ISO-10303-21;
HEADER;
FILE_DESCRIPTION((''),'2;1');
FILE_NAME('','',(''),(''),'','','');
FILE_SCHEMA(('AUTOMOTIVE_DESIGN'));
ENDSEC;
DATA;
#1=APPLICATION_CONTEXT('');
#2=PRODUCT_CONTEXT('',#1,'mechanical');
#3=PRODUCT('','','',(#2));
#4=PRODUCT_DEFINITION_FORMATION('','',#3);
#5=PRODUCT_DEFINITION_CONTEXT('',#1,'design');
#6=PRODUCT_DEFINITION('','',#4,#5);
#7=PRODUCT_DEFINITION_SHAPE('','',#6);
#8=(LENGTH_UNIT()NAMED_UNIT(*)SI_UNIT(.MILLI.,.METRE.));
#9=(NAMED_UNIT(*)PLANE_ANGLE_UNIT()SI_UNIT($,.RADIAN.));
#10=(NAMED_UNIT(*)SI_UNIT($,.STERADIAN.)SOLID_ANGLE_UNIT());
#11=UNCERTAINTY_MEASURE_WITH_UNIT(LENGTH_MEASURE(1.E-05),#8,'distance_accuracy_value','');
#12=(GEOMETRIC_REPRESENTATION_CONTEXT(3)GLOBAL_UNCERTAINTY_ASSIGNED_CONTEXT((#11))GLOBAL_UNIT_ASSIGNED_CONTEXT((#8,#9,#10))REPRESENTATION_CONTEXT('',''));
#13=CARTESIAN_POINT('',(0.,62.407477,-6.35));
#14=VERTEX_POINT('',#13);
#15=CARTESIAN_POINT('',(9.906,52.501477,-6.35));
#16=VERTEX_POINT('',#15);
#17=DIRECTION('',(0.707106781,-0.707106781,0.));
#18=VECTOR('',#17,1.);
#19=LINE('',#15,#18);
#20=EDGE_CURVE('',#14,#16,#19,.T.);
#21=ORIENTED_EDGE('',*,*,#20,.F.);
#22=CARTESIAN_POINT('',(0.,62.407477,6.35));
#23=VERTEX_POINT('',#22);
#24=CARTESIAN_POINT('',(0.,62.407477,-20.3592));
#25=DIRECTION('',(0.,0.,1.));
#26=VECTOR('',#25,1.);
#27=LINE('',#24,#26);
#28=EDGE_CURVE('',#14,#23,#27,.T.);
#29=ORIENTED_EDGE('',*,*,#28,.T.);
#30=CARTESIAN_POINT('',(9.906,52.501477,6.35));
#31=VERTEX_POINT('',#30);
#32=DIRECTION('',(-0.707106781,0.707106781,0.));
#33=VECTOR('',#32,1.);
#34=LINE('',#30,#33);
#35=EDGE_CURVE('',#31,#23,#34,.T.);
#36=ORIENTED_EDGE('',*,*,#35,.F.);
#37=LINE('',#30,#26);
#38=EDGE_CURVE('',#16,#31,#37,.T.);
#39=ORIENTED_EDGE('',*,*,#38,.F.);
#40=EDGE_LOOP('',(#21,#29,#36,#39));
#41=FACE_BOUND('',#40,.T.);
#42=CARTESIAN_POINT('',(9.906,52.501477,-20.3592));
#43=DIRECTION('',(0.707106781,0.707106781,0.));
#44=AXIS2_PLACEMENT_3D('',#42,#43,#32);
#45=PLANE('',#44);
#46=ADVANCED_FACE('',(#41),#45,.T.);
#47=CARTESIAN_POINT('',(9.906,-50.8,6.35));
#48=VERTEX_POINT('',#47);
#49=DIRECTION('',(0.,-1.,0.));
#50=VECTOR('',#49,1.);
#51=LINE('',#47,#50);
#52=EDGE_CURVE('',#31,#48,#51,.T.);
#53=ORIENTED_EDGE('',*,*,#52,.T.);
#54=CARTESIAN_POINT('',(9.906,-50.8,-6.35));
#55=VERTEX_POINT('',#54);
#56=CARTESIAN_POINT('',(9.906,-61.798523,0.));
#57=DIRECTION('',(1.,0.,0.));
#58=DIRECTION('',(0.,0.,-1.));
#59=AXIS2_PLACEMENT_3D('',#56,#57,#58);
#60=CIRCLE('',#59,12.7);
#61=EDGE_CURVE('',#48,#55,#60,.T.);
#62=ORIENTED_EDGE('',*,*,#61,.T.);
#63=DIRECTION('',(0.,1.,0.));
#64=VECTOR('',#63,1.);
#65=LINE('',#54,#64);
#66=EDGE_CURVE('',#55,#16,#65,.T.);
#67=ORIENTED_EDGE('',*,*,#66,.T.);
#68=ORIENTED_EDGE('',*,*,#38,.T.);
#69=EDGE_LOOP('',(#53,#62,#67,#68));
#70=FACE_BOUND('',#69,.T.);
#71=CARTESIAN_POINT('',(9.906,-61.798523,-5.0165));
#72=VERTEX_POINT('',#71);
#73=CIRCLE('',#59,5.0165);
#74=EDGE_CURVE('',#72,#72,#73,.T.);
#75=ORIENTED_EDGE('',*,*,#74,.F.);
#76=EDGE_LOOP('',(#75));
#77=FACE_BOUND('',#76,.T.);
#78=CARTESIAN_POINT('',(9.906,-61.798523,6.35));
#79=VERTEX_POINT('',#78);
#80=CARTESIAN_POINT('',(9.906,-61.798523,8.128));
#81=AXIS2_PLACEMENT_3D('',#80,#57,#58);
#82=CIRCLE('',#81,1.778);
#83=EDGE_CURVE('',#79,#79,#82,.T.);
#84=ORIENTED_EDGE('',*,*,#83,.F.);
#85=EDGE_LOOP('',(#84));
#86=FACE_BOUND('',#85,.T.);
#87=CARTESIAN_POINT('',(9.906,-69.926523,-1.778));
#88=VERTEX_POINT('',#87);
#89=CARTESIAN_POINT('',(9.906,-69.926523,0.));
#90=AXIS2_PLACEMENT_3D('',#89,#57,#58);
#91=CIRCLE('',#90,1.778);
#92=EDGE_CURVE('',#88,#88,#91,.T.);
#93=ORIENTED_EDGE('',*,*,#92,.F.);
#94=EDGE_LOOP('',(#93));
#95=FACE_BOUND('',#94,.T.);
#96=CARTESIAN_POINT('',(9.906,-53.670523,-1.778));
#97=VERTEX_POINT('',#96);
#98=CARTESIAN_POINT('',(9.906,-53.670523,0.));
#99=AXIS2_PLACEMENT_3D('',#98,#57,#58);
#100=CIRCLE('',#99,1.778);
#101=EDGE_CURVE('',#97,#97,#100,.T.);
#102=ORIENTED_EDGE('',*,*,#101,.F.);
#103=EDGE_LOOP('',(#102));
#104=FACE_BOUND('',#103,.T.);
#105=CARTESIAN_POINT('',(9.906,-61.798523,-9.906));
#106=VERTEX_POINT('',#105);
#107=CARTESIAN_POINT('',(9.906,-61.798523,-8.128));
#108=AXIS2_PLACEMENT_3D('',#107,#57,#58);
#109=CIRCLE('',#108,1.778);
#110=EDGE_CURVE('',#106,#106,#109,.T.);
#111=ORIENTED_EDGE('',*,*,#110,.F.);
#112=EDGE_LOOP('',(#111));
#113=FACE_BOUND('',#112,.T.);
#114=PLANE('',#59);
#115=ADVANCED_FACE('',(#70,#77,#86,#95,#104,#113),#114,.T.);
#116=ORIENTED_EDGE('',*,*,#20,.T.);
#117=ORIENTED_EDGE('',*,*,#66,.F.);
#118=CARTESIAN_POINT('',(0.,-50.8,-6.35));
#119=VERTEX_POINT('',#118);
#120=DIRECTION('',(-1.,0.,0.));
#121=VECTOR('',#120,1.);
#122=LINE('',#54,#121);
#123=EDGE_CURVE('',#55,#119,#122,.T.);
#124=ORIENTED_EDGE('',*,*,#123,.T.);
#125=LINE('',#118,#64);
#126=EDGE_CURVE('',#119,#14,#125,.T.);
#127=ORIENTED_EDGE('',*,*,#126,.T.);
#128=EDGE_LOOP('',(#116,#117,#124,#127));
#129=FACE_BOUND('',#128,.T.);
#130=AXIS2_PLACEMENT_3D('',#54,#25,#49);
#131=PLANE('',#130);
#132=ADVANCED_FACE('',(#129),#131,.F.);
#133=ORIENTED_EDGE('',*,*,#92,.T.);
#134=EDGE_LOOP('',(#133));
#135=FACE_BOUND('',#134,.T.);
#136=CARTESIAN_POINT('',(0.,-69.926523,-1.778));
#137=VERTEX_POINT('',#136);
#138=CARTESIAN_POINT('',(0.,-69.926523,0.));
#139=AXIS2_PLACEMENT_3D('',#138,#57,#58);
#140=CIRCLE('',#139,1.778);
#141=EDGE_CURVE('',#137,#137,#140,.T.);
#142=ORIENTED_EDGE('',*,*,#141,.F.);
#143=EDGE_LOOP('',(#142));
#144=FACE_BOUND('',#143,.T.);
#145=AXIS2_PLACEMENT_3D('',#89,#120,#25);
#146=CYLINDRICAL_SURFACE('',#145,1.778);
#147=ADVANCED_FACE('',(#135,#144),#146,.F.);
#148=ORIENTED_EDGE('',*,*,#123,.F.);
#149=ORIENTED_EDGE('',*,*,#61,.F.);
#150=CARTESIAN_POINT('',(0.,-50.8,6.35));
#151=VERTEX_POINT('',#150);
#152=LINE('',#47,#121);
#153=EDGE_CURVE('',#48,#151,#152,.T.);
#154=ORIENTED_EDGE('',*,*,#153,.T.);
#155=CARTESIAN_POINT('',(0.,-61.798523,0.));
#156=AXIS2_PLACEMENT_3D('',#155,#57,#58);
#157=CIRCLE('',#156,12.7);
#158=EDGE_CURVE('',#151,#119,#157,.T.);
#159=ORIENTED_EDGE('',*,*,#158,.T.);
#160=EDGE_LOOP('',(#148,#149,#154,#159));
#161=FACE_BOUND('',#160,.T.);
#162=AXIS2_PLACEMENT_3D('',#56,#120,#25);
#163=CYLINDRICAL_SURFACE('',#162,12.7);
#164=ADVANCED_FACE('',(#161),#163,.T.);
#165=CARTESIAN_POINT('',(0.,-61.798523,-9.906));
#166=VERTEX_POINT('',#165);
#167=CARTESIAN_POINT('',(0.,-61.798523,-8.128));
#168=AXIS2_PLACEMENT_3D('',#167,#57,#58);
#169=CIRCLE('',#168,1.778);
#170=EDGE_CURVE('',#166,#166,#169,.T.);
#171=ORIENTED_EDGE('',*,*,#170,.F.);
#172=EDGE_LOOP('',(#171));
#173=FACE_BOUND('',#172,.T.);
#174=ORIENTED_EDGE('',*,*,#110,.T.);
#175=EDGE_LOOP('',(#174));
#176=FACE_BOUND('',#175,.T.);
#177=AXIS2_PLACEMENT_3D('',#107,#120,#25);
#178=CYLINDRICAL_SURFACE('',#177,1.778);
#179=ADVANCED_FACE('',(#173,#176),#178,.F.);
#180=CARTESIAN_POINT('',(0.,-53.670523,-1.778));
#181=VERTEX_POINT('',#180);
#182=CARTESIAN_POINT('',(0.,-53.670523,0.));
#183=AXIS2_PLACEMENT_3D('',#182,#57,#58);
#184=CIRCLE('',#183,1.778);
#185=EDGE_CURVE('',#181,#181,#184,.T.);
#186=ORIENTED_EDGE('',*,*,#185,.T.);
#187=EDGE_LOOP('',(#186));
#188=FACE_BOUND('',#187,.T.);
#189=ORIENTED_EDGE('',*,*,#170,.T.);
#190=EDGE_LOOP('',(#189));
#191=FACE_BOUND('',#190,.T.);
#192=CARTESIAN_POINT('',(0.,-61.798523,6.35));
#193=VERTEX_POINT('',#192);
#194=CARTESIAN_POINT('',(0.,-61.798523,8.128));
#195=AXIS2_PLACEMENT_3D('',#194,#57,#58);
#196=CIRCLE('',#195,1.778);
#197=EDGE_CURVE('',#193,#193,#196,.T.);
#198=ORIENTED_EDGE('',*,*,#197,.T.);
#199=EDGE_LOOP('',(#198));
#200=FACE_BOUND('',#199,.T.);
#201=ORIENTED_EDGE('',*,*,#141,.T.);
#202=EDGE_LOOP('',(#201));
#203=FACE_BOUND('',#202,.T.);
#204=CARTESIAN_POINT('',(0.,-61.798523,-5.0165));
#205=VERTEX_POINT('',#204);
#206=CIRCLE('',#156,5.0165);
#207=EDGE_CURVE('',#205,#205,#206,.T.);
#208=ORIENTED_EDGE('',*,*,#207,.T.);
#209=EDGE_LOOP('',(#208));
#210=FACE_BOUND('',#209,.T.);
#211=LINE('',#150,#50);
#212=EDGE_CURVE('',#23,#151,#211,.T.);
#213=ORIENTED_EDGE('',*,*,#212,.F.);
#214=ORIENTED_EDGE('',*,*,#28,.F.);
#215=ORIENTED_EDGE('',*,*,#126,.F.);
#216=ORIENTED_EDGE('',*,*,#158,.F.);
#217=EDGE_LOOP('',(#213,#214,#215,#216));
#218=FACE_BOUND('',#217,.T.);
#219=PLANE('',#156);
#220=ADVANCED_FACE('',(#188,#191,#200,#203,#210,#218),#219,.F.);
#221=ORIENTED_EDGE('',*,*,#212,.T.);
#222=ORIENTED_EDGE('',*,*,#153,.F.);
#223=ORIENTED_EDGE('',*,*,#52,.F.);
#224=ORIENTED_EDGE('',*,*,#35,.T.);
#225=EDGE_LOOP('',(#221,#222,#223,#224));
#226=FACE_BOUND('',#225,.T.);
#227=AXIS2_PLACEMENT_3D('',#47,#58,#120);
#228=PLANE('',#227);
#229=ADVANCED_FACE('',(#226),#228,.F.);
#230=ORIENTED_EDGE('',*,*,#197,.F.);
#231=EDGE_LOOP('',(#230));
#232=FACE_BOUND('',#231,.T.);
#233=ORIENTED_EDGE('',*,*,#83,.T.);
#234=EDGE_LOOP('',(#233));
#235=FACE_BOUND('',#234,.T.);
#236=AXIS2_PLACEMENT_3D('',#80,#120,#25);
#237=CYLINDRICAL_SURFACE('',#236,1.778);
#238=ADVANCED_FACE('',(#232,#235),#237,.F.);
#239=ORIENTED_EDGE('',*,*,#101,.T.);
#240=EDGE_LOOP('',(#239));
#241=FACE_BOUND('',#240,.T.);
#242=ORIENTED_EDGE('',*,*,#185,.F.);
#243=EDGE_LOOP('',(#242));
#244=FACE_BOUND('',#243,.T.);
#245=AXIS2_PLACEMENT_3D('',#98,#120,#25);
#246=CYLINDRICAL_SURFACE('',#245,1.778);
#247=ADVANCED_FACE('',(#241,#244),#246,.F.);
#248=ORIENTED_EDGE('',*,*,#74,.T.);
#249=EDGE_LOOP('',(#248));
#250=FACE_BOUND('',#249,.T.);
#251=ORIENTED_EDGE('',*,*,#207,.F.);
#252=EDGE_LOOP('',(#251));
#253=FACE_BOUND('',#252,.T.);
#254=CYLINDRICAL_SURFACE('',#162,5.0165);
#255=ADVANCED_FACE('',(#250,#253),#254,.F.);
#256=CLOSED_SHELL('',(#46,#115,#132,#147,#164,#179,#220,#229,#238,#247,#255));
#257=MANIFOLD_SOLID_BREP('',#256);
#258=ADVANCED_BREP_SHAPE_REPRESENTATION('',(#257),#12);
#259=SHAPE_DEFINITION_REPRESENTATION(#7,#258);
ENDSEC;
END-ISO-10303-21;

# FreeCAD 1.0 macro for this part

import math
import FreeCAD as App
import Part
import Sketcher

V = App.Vector
Q = App.Units.Quantity

doc = App.newDocument("Part")
params = doc.addObject("Spreadsheet::Sheet", "Params")
for row, (alias, value) in enumerate([
    ("sketch1_radius", "0.5 in"),
    ("sketch1_diameter", "0.14 in"),
    ("sketch1_diameter2", "0.395 in"),
    ("sketch1_height", "0.5 in"),
    ("pad1_length", "0.39 in"),
    ("sketch2_width", "0.39 in"),
    ("pad2_length", "0.5 in"),
], start=1):
    params.set(f"A{row}", alias)
    params.set(f"B{row}", "=" + value)
    params.setAlias(f"B{row}", alias)

body = doc.addObject("PartDesign::Body", "Body")

# Sketch on YZ plane
sketch1 = body.newObject("Sketcher::SketchObject", "Sketch")
sketch1.AttachmentSupport = (doc.getObject("YZ_Plane"), [""])
sketch1.MapMode = "FlatFace"
sketch1.addGeometry(Part.LineSegment(V(52.5, 6.3, 0), V(-50.8, 6.3, 0)), False)
sketch1.addGeometry(Part.ArcOfCircle(Part.Circle(V(-61.8, 0, 0), V(0, 0, 1), 12.7), math.radians(30), math.radians(330)), False)
sketch1.addGeometry(Part.LineSegment(V(-50.8, -6.3, 0), V(52.5, -6.3, 0)), False)
sketch1.addGeometry(Part.LineSegment(V(52.5, -6.3, 0), V(52.5, 6.3, 0)), False)
sketch1.addGeometry(Part.Circle(V(-69.9, 0, 0), V(0, 0, 1), 1.8), False)
sketch1.addGeometry(Part.Circle(V(-61.8, -8.1, 0), V(0, 0, 1), 1.8), False)
sketch1.addGeometry(Part.Circle(V(-61.8, 0, 0), V(0, 0, 1), 5), False)
sketch1.addGeometry(Part.Circle(V(-61.8, 8.1, 0), V(0, 0, 1), 1.8), False)
sketch1.addGeometry(Part.Circle(V(-53.7, 0, 0), V(0, 0, 1), 1.8), False)
sketch1.addConstraint(Sketcher.Constraint("Coincident", 0, 2, 1, 1))
sketch1.addConstraint(Sketcher.Constraint("Coincident", 1, 2, 2, 1))
sketch1.addConstraint(Sketcher.Constraint("Coincident", 2, 2, 3, 1))
sketch1.addConstraint(Sketcher.Constraint("Coincident", 3, 2, 0, 1))
sketch1.addConstraint(Sketcher.Constraint("Horizontal", 0))
sketch1.addConstraint(Sketcher.Constraint("Horizontal", 2))
sketch1.addConstraint(Sketcher.Constraint("Vertical", 3))
sketch1.addConstraint(Sketcher.Constraint("Coincident", 6, 3, 1, 3))
sketch1.addConstraint(Sketcher.Constraint("Equal", 4, 5))
sketch1.addConstraint(Sketcher.Constraint("Equal", 5, 7))
sketch1.addConstraint(Sketcher.Constraint("Equal", 7, 8))
sketch1.addConstraint(Sketcher.Constraint("Symmetric", 5, 3, 7, 3, -1))
sketch1.addConstraint(Sketcher.Constraint("Symmetric", 0, 2, 1, 2, -1))
sketch1.addConstraint(Sketcher.Constraint("PointOnObject", 4, 3, -1))
sketch1.addConstraint(Sketcher.Constraint("PointOnObject", 8, 3, -1))
sketch1.addConstraint(Sketcher.Constraint("Vertical", 1, 3, 5, 3))
sketch1.addConstraint(Sketcher.Constraint("Radius", 1, Q("0.5 in")))
sketch1.addConstraint(Sketcher.Constraint("Diameter", 4, Q("0.14 in")))
sketch1.addConstraint(Sketcher.Constraint("Diameter", 6, Q("0.395 in")))
sketch1.addConstraint(Sketcher.Constraint("DistanceY", 3, 1, 3, 2, Q("0.5 in")))
sketch1.addConstraint(Sketcher.Constraint("DistanceX", 0, 2, -1, 1, Q("2 in")))
sketch1.addConstraint(Sketcher.Constraint("DistanceX", 5, 3, 2, 2, Q("4.5 in")))
sketch1.addConstraint(Sketcher.Constraint("DistanceY", 5, 3, -1, 1, Q("0.32 in")))
sketch1.addConstraint(Sketcher.Constraint("DistanceX", 4, 3, 1, 3, Q("0.32 in")))
sketch1.addConstraint(Sketcher.Constraint("DistanceX", 1, 3, 8, 3, Q("0.32 in")))
sketch1.setExpression("Constraints[16]", "Params.sketch1_radius")
sketch1.setExpression("Constraints[17]", "Params.sketch1_diameter")
sketch1.setExpression("Constraints[18]", "Params.sketch1_diameter2")
sketch1.setExpression("Constraints[19]", "Params.sketch1_height")
pad1 = body.newObject("PartDesign::Pad", "Pad")
pad1.Profile = sketch1
pad1.setExpression("Length", "Params.pad1_length")

# Sketch on XY plane
sketch2 = body.newObject("Sketcher::SketchObject", "Sketch001")
sketch2.AttachmentSupport = (doc.getObject("XY_Plane"), [""])
sketch2.MapMode = "FlatFace"
sketch2.AttachmentOffset = App.Placement(V(0, 0, 0.25 * 25.4), App.Rotation())
sketch2.addGeometry(Part.LineSegment(V(0, 53, 0), V(10, 53, 0)), False)
sketch2.addGeometry(Part.LineSegment(V(10, 53, 0), V(0, 62, 0)), False)
sketch2.addGeometry(Part.LineSegment(V(0, 62, 0), V(0, 53, 0)), False)
sketch2.addConstraint(Sketcher.Constraint("Coincident", 0, 2, 1, 1))
sketch2.addConstraint(Sketcher.Constraint("Coincident", 1, 2, 2, 1))
sketch2.addConstraint(Sketcher.Constraint("Coincident", 2, 2, 0, 1))
sketch2.addConstraint(Sketcher.Constraint("Horizontal", 0))
sketch2.addConstraint(Sketcher.Constraint("Vertical", 2))
sketch2.addConstraint(Sketcher.Constraint("PointOnObject", 1, 2, -2))
sketch2.addConstraint(Sketcher.Constraint("Equal", 0, 2))
sketch2.addConstraint(Sketcher.Constraint("DistanceX", 0, 1, 0, 2, Q("0.39 in")))
sketch2.addConstraint(Sketcher.Constraint("DistanceY", -1, 1, 0, 2, 52.501477))
sketch2.setExpression("Constraints[7]", "Params.sketch2_width")
pad2 = body.newObject("PartDesign::Pad", "Pad001")
pad2.Profile = sketch2
pad2.setExpression("Length", "Params.pad2_length")
pad2.Reversed = True

doc.recompute()
